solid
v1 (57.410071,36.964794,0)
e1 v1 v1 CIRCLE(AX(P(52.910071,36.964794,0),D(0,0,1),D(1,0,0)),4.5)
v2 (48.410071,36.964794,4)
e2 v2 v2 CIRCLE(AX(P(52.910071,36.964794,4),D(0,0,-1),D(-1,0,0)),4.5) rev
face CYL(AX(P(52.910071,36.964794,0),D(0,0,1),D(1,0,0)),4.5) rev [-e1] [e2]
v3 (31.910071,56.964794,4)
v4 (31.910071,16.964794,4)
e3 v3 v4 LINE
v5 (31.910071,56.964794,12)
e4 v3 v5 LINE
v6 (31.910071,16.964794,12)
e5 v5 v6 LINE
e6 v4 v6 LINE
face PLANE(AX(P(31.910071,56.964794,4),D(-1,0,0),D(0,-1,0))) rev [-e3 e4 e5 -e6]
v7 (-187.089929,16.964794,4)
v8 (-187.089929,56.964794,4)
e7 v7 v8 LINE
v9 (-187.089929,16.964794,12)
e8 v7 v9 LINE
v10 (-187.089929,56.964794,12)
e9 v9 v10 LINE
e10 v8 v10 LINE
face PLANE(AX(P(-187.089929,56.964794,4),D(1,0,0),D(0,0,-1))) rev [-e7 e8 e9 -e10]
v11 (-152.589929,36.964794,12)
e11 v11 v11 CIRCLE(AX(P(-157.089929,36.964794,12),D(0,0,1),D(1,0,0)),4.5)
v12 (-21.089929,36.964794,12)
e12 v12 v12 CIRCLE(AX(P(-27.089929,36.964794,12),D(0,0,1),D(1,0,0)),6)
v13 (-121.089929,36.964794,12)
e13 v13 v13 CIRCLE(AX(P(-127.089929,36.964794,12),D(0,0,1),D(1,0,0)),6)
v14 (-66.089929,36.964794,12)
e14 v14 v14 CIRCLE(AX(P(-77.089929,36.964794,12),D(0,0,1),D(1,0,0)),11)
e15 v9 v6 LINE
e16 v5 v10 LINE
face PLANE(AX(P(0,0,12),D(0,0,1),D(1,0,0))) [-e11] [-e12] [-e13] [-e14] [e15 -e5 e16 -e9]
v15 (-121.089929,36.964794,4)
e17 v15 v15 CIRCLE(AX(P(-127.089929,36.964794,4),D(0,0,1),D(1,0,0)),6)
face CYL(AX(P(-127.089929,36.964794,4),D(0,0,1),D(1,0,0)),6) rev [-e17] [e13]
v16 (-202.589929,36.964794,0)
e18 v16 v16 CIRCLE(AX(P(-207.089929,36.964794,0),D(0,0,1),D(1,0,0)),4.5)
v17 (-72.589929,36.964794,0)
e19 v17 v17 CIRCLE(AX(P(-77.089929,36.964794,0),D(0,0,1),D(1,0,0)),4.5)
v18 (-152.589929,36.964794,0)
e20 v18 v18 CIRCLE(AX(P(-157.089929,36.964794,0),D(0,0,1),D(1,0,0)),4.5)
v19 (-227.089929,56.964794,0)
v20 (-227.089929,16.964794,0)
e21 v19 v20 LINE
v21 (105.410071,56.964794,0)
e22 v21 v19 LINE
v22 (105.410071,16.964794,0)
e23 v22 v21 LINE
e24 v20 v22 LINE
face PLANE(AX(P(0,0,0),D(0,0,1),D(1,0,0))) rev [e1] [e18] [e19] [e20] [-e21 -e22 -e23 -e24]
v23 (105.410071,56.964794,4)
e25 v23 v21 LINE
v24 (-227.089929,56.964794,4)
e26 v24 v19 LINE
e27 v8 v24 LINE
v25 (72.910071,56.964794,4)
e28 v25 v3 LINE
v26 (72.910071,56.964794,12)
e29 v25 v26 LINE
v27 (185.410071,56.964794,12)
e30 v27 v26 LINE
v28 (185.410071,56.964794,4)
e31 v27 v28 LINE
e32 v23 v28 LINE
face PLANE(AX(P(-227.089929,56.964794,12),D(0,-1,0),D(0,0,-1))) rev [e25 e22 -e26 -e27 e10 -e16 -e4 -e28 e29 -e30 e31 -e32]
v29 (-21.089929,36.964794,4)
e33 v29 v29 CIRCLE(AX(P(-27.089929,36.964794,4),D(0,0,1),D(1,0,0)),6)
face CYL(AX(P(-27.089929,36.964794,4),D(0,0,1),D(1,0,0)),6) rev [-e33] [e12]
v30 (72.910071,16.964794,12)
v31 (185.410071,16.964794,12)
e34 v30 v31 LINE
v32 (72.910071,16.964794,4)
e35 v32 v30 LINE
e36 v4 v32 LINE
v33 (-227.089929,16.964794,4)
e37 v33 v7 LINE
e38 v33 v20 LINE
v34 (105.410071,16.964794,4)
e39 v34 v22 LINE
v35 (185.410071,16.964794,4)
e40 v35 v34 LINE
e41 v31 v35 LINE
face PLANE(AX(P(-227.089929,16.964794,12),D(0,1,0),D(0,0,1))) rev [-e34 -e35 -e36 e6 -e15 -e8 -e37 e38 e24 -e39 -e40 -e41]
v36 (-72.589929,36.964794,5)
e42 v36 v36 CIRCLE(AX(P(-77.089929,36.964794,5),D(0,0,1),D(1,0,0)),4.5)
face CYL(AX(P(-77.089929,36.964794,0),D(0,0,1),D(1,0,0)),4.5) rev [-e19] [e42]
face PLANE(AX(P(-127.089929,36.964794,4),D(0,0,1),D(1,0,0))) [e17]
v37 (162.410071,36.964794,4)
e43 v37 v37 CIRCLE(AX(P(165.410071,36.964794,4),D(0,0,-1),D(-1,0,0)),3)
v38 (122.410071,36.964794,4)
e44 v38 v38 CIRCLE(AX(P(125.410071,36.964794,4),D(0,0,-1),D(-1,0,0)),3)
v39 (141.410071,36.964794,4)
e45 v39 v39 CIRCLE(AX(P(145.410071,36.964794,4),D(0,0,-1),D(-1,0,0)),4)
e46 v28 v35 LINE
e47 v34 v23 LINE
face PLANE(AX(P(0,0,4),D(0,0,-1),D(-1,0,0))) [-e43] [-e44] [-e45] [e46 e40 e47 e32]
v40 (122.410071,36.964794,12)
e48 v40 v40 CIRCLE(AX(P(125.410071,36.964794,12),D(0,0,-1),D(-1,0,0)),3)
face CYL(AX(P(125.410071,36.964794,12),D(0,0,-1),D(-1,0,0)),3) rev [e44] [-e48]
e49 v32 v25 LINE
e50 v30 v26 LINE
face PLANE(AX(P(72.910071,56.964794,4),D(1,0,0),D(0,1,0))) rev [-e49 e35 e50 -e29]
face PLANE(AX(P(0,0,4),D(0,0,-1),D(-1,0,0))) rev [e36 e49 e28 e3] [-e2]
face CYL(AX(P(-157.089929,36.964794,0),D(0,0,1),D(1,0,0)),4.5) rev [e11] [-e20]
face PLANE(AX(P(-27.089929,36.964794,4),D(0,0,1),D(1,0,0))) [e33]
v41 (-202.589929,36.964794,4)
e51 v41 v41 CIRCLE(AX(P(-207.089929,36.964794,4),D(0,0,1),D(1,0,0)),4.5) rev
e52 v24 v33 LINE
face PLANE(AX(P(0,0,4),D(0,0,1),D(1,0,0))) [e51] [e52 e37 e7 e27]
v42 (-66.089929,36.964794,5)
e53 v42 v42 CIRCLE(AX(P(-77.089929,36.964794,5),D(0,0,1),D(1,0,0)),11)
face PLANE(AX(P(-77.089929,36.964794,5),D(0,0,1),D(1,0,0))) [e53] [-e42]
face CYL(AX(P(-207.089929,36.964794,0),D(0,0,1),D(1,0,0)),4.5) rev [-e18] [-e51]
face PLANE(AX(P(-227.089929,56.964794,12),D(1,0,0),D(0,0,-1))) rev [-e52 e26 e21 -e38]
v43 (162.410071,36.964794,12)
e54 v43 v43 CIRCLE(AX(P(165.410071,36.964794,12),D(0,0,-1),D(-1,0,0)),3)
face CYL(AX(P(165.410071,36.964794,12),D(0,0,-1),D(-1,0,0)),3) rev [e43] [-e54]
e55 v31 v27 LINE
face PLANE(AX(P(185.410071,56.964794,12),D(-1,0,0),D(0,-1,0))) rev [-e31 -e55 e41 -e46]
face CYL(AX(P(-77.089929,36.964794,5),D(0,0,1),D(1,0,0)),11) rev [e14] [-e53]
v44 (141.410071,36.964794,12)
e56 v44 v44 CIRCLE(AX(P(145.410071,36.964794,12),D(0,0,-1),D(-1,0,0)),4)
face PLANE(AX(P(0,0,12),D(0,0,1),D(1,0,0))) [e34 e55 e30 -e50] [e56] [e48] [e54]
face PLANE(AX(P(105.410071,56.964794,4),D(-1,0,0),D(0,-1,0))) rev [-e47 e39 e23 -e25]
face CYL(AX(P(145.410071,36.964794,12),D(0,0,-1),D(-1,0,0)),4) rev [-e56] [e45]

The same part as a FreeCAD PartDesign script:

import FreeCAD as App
import Part
import Sketcher

doc = App.newDocument("Part")
params = doc.addObject("Spreadsheet::Sheet", "Params")
for row, (alias, value) in enumerate([
    ("sketch1_height", "40 mm"),
    ("sketch1_width", "412.5 mm"),
    ("pad1_length", "12 mm"),
    ("sketch2_diameter", "9 mm"),
    ("sketch3_diameter", "22 mm"),
    ("pocket2_length", "7 mm"),
    ("sketch4_width", "40 mm"),
    ("sketch4_width2", "41 mm"),
    ("pocket3_length", "8 mm"),
    ("sketch5_diameter", "12 mm"),
    ("pocket4_length", "8 mm"),
    ("sketch6_width", "80 mm"),
    ("sketch6_height", "40 mm"),
    ("pocket5_length", "4 mm"),
    ("sketch7_diameter", "6 mm"),
    ("sketch8_diameter", "8 mm"),
    ("sketch9_diameter", "9 mm"),
], start=1):
    params.set(f"A{row}", alias)
    params.set(f"B{row}", "=" + value)
    params.setAlias(f"B{row}", alias)

body = doc.addObject("PartDesign::Body", "Body")

# Sketch on XY plane
sketch1 = body.newObject("Sketcher::SketchObject", "Sketch")
sketch1.AttachmentSupport = (doc.getObject("XY_Plane"), [""])
sketch1.MapMode = "FlatFace"
sketch1.addGeometry([
    Part.LineSegment(App.Vector(-227, 57, 0), App.Vector(-227, 17, 0)),
    Part.LineSegment(App.Vector(-227, 17, 0), App.Vector(185, 17, 0)),
    Part.LineSegment(App.Vector(185, 17, 0), App.Vector(185, 57, 0)),
    Part.LineSegment(App.Vector(185, 57, 0), App.Vector(-227, 57, 0)),
], False)
sketch1.addConstraint([
    Sketcher.Constraint("Coincident", 0, 2, 1, 1),
    Sketcher.Constraint("Coincident", 1, 2, 2, 1),
    Sketcher.Constraint("Coincident", 2, 2, 3, 1),
    Sketcher.Constraint("Coincident", 3, 2, 0, 1),
    Sketcher.Constraint("Vertical", 0),
    Sketcher.Constraint("Horizontal", 1),
    Sketcher.Constraint("Vertical", 2),
    Sketcher.Constraint("Horizontal", 3),
    Sketcher.Constraint("DistanceY", 0, 2, 0, 1, 40.0),
    Sketcher.Constraint("DistanceX", 1, 1, 1, 2, 412.5),
    Sketcher.Constraint("DistanceX", 0, 2, -1, 1, 227.089929),
    Sketcher.Constraint("DistanceY", -1, 1, 0, 2, 16.964794),
])
sketch1.setExpression("Constraints[8]", "Params.sketch1_height")
sketch1.setExpression("Constraints[9]", "Params.sketch1_width")
pad1 = body.newObject("PartDesign::Pad", "Pad")
pad1.Profile = sketch1
pad1.setExpression("Length", "Params.pad1_length")

# Sketch on XY plane
sketch2 = body.newObject("Sketcher::SketchObject", "Sketch001")
sketch2.AttachmentSupport = (doc.getObject("XY_Plane"), [""])
sketch2.MapMode = "FlatFace"
sketch2.AttachmentOffset = App.Placement(App.Vector(0, 0, 12), App.Rotation())
sketch2.addGeometry([
    Part.Circle(App.Vector(-207.1, 37, 0), App.Vector(0, 0, 1), 4.5),
    Part.Circle(App.Vector(-157.1, 37, 0), App.Vector(0, 0, 1), 4.5),
    Part.Circle(App.Vector(52.9, 37, 0), App.Vector(0, 0, 1), 4.5),
], False)
sketch2.addConstraint([
    Sketcher.Constraint("Equal", 0, 1),
    Sketcher.Constraint("Equal", 1, 2),
    Sketcher.Constraint("Horizontal", 0, 3, 1, 3),
    Sketcher.Constraint("Horizontal", 1, 3, 2, 3),
    Sketcher.Constraint("Diameter", 0, 9.0),
    Sketcher.Constraint("DistanceX", 0, 3, 1, 3, 50.0),
    Sketcher.Constraint("DistanceX", 1, 3, 2, 3, 210.0),
    Sketcher.Constraint("DistanceX", 0, 3, -1, 1, 207.089929),
    Sketcher.Constraint("DistanceY", -1, 1, 0, 3, 36.964794),
])
sketch2.setExpression("Constraints[4]", "Params.sketch2_diameter")
pocket1 = body.newObject("PartDesign::Pocket", "Pocket")
pocket1.Profile = sketch2
pocket1.Type = "ThroughAll"

# Sketch on XY plane
sketch3 = body.newObject("Sketcher::SketchObject", "Sketch002")
sketch3.AttachmentSupport = (doc.getObject("XY_Plane"), [""])
sketch3.MapMode = "FlatFace"
sketch3.AttachmentOffset = App.Placement(App.Vector(0, 0, 12), App.Rotation())
sketch3.addGeometry(Part.Circle(App.Vector(-77, 37, 0), App.Vector(0, 0, 1), 11), False)
sketch3.addConstraint([
    Sketcher.Constraint("Diameter", 0, 22.0),
    Sketcher.Constraint("DistanceX", 0, 3, -1, 1, 77.089929),
    Sketcher.Constraint("DistanceY", -1, 1, 0, 3, 36.964794),
])
sketch3.setExpression("Constraints[0]", "Params.sketch3_diameter")
pocket2 = body.newObject("PartDesign::Pocket", "Pocket001")
pocket2.Profile = sketch3
pocket2.setExpression("Length", "Params.pocket2_length")

# Sketch on XY plane
sketch4 = body.newObject("Sketcher::SketchObject", "Sketch003")
sketch4.AttachmentSupport = (doc.getObject("XY_Plane"), [""])
sketch4.MapMode = "FlatFace"
sketch4.AttachmentOffset = App.Placement(App.Vector(0, 0, 12), App.Rotation())
sketch4.addGeometry([
    Part.LineSegment(App.Vector(-227, 57, 0), App.Vector(-227, 17, 0)),  # 0
    Part.LineSegment(App.Vector(-227, 17, 0), App.Vector(-187, 17, 0)),  # 1
    Part.LineSegment(App.Vector(-187, 17, 0), App.Vector(-187, 57, 0)),  # 2
    Part.LineSegment(App.Vector(-187, 57, 0), App.Vector(-227, 57, 0)),  # 3
    Part.LineSegment(App.Vector(32, 57, 0), App.Vector(32, 17, 0)),  # 4
    Part.LineSegment(App.Vector(32, 17, 0), App.Vector(73, 17, 0)),  # 5
    Part.LineSegment(App.Vector(73, 17, 0), App.Vector(73, 57, 0)),  # 6
    Part.LineSegment(App.Vector(73, 57, 0), App.Vector(32, 57, 0)),  # 7
], False)
sketch4.addConstraint([
    Sketcher.Constraint("Coincident", 0, 2, 1, 1),
    Sketcher.Constraint("Coincident", 1, 2, 2, 1),
    Sketcher.Constraint("Coincident", 2, 2, 3, 1),
    Sketcher.Constraint("Coincident", 3, 2, 0, 1),
    Sketcher.Constraint("Coincident", 4, 2, 5, 1),
    Sketcher.Constraint("Coincident", 5, 2, 6, 1),
    Sketcher.Constraint("Coincident", 6, 2, 7, 1),
    Sketcher.Constraint("Coincident", 7, 2, 4, 1),
    Sketcher.Constraint("Vertical", 0),
    Sketcher.Constraint("Horizontal", 1),
    Sketcher.Constraint("Vertical", 2),
    Sketcher.Constraint("Horizontal", 3),
    Sketcher.Constraint("Vertical", 4),
    Sketcher.Constraint("Horizontal", 5),
    Sketcher.Constraint("Vertical", 6),
    Sketcher.Constraint("Horizontal", 7),
    Sketcher.Constraint("Horizontal", 1, 2, 4, 2),
    Sketcher.Constraint("Horizontal", 3, 2, 6, 2),
    Sketcher.Constraint("Equal", 3, 0),
    Sketcher.Constraint("DistanceX", 1, 1, 1, 2, 40.0),
    Sketcher.Constraint("DistanceX", 5, 1, 5, 2, 41.0),
    Sketcher.Constraint("DistanceX", 1, 2, 4, 2, 219.0),
    Sketcher.Constraint("DistanceX", 0, 2, -1, 1, 227.089929),
    Sketcher.Constraint("DistanceY", -1, 1, 0, 2, 16.964794),
])
sketch4.setExpression("Constraints[19]", "Params.sketch4_width")
sketch4.setExpression("Constraints[20]", "Params.sketch4_width2")
pocket3 = body.newObject("PartDesign::Pocket", "Pocket002")
pocket3.Profile = sketch4
pocket3.setExpression("Length", "Params.pocket3_length")

# Sketch on XY plane
sketch5 = body.newObject("Sketcher::SketchObject", "Sketch004")
sketch5.AttachmentSupport = (doc.getObject("XY_Plane"), [""])
sketch5.MapMode = "FlatFace"
sketch5.AttachmentOffset = App.Placement(App.Vector(0, 0, 12), App.Rotation())
sketch5.addGeometry([
    Part.Circle(App.Vector(-127, 37, 0), App.Vector(0, 0, 1), 6),
    Part.Circle(App.Vector(-27, 37, 0), App.Vector(0, 0, 1), 6),
], False)
sketch5.addConstraint([
    Sketcher.Constraint("Equal", 0, 1),
    Sketcher.Constraint("Horizontal", 0, 3, 1, 3),
    Sketcher.Constraint("Diameter", 0, 12.0),
    Sketcher.Constraint("DistanceX", 0, 3, 1, 3, 100.0),
    Sketcher.Constraint("DistanceX", 0, 3, -1, 1, 127.089929),
    Sketcher.Constraint("DistanceY", -1, 1, 0, 3, 36.964794),
])
sketch5.setExpression("Constraints[2]", "Params.sketch5_diameter")
pocket4 = body.newObject("PartDesign::Pocket", "Pocket003")
pocket4.Profile = sketch5
pocket4.setExpression("Length", "Params.pocket4_length")

# Sketch on XY plane
sketch6 = body.newObject("Sketcher::SketchObject", "Sketch005")
sketch6.AttachmentSupport = (doc.getObject("XY_Plane"), [""])
sketch6.MapMode = "FlatFace"
sketch6.addGeometry([
    Part.LineSegment(App.Vector(185, 57, 0), App.Vector(185, 17, 0)),
    Part.LineSegment(App.Vector(185, 17, 0), App.Vector(105, 17, 0)),
    Part.LineSegment(App.Vector(105, 17, 0), App.Vector(105, 57, 0)),
    Part.LineSegment(App.Vector(105, 57, 0), App.Vector(185, 57, 0)),
], False)
sketch6.addConstraint([
    Sketcher.Constraint("Coincident", 0, 2, 1, 1),
    Sketcher.Constraint("Coincident", 1, 2, 2, 1),
    Sketcher.Constraint("Coincident", 2, 2, 3, 1),
    Sketcher.Constraint("Coincident", 3, 2, 0, 1),
    Sketcher.Constraint("Vertical", 0),
    Sketcher.Constraint("Horizontal", 1),
    Sketcher.Constraint("Vertical", 2),
    Sketcher.Constraint("Horizontal", 3),
    Sketcher.Constraint("DistanceX", 1, 2, 1, 1, 80.0),
    Sketcher.Constraint("DistanceY", 0, 2, 0, 1, 40.0),
    Sketcher.Constraint("DistanceX", -1, 1, 0, 2, 185.410071),
    Sketcher.Constraint("DistanceY", -1, 1, 0, 2, 16.964794),
])
sketch6.setExpression("Constraints[8]", "Params.sketch6_width")
sketch6.setExpression("Constraints[9]", "Params.sketch6_height")
pocket5 = body.newObject("PartDesign::Pocket", "Pocket004")
pocket5.Profile = sketch6
pocket5.setExpression("Length", "Params.pocket5_length")
pocket5.Reversed = True

# Sketch on XY plane
sketch7 = body.newObject("Sketcher::SketchObject", "Sketch006")
sketch7.AttachmentSupport = (doc.getObject("XY_Plane"), [""])
sketch7.MapMode = "FlatFace"
sketch7.AttachmentOffset = App.Placement(App.Vector(0, 0, 4), App.Rotation())
sketch7.addGeometry([
    Part.Circle(App.Vector(165.4, 37, 0), App.Vector(0, 0, 1), 3),
    Part.Circle(App.Vector(125.4, 37, 0), App.Vector(0, 0, 1), 3),
], False)
sketch7.addConstraint([
    Sketcher.Constraint("Equal", 0, 1),
    Sketcher.Constraint("Horizontal", 0, 3, 1, 3),
    Sketcher.Constraint("Diameter", 0, 6.0),
    Sketcher.Constraint("DistanceX", 1, 3, 0, 3, 40.0),
    Sketcher.Constraint("DistanceX", -1, 1, 0, 3, 165.410071),
    Sketcher.Constraint("DistanceY", -1, 1, 0, 3, 36.964794),
])
sketch7.setExpression("Constraints[2]", "Params.sketch7_diameter")
pocket6 = body.newObject("PartDesign::Pocket", "Pocket005")
pocket6.Profile = sketch7
pocket6.Type = "ThroughAll"
pocket6.Reversed = True

# Sketch on XY plane
sketch8 = body.newObject("Sketcher::SketchObject", "Sketch007")
sketch8.AttachmentSupport = (doc.getObject("XY_Plane"), [""])
sketch8.MapMode = "FlatFace"
sketch8.AttachmentOffset = App.Placement(App.Vector(0, 0, 4), App.Rotation())
sketch8.addGeometry(Part.Circle(App.Vector(145.4, 37, 0), App.Vector(0, 0, 1), 4), False)
sketch8.addConstraint([
    Sketcher.Constraint("Diameter", 0, 8.0),
    Sketcher.Constraint("DistanceX", -1, 1, 0, 3, 145.410071),
    Sketcher.Constraint("DistanceY", -1, 1, 0, 3, 36.964794),
])
sketch8.setExpression("Constraints[0]", "Params.sketch8_diameter")
pocket7 = body.newObject("PartDesign::Pocket", "Pocket006")
pocket7.Profile = sketch8
pocket7.Type = "ThroughAll"
pocket7.Reversed = True

# Sketch on XY plane
sketch9 = body.newObject("Sketcher::SketchObject", "Sketch008")
sketch9.AttachmentSupport = (doc.getObject("XY_Plane"), [""])
sketch9.MapMode = "FlatFace"
sketch9.AttachmentOffset = App.Placement(App.Vector(0, 0, 5), App.Rotation())
sketch9.addGeometry(Part.Circle(App.Vector(-77.1, 37, 0), App.Vector(0, 0, 1), 4.5), False)
sketch9.addConstraint([
    Sketcher.Constraint("Diameter", 0, 9.0),
    Sketcher.Constraint("DistanceX", 0, 3, -1, 1, 77.089929),
    Sketcher.Constraint("DistanceY", -1, 1, 0, 3, 36.964794),
])
sketch9.setExpression("Constraints[0]", "Params.sketch9_diameter")
pocket8 = body.newObject("PartDesign::Pocket", "Pocket007")
pocket8.Profile = sketch9
pocket8.Type = "ThroughAll"

doc.recompute()
